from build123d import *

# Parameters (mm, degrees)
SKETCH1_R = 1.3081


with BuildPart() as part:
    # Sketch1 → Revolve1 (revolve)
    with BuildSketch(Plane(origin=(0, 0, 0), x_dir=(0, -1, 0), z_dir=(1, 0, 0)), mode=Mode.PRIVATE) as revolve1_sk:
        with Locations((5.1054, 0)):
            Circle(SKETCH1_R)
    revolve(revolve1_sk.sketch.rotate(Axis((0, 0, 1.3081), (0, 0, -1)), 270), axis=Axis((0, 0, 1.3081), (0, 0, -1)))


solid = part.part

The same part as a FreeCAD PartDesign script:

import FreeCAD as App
import Part
import Sketcher
Q = App.Units.Quantity

doc = App.newDocument("Part")
body = doc.addObject("PartDesign::Body", "Body")

sketch1 = body.newObject("Sketcher::SketchObject", "Sketch")
sketch1.AttachmentSupport = (doc.getObject("YZ_Plane"), [""])
sketch1.MapMode = "FlatFace"
sketch1.addGeometry(Part.Circle(App.Vector(-5.1, 0, 0), App.Vector(0, 0, 1), 1.3), False)
sketch1.addConstraint([
    Sketcher.Constraint("PointOnObject", 0, 3, -1),
    Sketcher.Constraint("Diameter", 0, Q("0.103 in")),
    Sketcher.Constraint("DistanceX", 0, 3, -1, 1, Q("0.201 in")),
])
revolution = body.newObject("PartDesign::Revolution", "Revolution")
revolution.Profile = sketch1
revolution.ReferenceAxis = (sketch1, ["V_Axis"])
revolution.Angle = 360

doc.recompute()
